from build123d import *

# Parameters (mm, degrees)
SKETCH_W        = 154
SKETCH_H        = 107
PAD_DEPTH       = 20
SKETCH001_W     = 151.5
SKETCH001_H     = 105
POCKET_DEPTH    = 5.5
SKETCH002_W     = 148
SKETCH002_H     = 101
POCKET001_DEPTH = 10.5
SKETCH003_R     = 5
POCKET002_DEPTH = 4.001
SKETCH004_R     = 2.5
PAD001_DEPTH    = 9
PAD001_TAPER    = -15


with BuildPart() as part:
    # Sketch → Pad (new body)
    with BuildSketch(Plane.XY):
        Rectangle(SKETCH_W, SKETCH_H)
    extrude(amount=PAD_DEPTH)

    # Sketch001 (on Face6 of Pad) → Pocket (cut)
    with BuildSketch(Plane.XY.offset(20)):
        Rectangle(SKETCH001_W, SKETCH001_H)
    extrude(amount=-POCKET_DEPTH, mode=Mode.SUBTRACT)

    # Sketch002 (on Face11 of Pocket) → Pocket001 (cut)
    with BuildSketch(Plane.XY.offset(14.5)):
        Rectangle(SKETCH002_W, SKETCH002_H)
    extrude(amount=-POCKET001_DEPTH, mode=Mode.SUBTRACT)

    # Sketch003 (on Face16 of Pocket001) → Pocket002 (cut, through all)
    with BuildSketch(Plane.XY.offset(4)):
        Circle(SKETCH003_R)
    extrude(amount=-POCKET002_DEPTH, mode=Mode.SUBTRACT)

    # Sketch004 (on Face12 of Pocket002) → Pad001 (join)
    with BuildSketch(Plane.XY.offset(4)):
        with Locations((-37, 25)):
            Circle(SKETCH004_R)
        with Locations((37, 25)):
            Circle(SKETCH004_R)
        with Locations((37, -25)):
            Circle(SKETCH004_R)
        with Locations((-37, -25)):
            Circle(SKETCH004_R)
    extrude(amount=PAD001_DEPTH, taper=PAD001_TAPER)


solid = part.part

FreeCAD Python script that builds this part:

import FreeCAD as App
import Part
import Sketcher

V = App.Vector
Q = App.Units.Quantity


def add_polygon(sketch, points):
    """Adds a closed chain of lines whose ends are joined by coincident constraints."""
    first, n = sketch.GeometryCount, len(points)
    for a, b in zip(points, points[1:] + points[:1]):
        sketch.addGeometry(Part.LineSegment(App.Vector(*a, 0), App.Vector(*b, 0)), False)
    for i in range(n):
        sketch.addConstraint(Sketcher.Constraint("Coincident", first + i, 2, first + (i + 1) % n, 1))

doc = App.newDocument("Part")
body = doc.addObject("PartDesign::Body", "Body")

# Sketch on XY plane
sketch1 = doc.addObject("Sketcher::SketchObject", "Sketch")
body.addObject(sketch1)
sketch1.AttachmentSupport = (doc.XY_Plane, [""])
sketch1.MapMode = "FlatFace"
add_polygon(sketch1, [(-77, 54), (-77, -54), (77, -54), (77, 54)])  # lines 0-3
sketch1.addConstraint(Sketcher.Constraint("Vertical", 0))
sketch1.addConstraint(Sketcher.Constraint("Horizontal", 1))
sketch1.addConstraint(Sketcher.Constraint("Vertical", 2))
sketch1.addConstraint(Sketcher.Constraint("Horizontal", 3))
sketch1.addConstraint(Sketcher.Constraint("Symmetric", 0, 2, 2, 2, -1, 1))
sketch1.addConstraint(Sketcher.Constraint("DistanceX", 1, 1, 1, 2, Q("154 mm")))
sketch1.addConstraint(Sketcher.Constraint("DistanceY", 0, 2, 0, 1, Q("107 mm")))
pad1 = doc.addObject("PartDesign::Pad", "Pad")
body.addObject(pad1)
pad1.Profile = sketch1
pad1.Length = 20

# Sketch on XY plane
sketch2 = doc.addObject("Sketcher::SketchObject", "Sketch001")
body.addObject(sketch2)
sketch2.AttachmentSupport = (doc.XY_Plane, [""])
sketch2.MapMode = "FlatFace"
sketch2.AttachmentOffset = App.Placement(V(0, 0, 20), App.Rotation())
add_polygon(sketch2, [(-76, 52), (-76, -52), (76, -52), (76, 52)])  # lines 0-3
sketch2.addConstraint(Sketcher.Constraint("Vertical", 0))
sketch2.addConstraint(Sketcher.Constraint("Horizontal", 1))
sketch2.addConstraint(Sketcher.Constraint("Vertical", 2))
sketch2.addConstraint(Sketcher.Constraint("Horizontal", 3))
sketch2.addConstraint(Sketcher.Constraint("Symmetric", 0, 2, 2, 2, -1, 1))
sketch2.addConstraint(Sketcher.Constraint("DistanceY", 0, 2, 0, 1, Q("105 mm")))
sketch2.addConstraint(Sketcher.Constraint("DistanceX", 1, 1, 1, 2, Q("151.5 mm")))
pocket1 = doc.addObject("PartDesign::Pocket", "Pocket")
body.addObject(pocket1)
pocket1.Profile = sketch2
pocket1.Length = 5.5

# Sketch on XY plane
sketch3 = doc.addObject("Sketcher::SketchObject", "Sketch002")
body.addObject(sketch3)
sketch3.AttachmentSupport = (doc.XY_Plane, [""])
sketch3.MapMode = "FlatFace"
sketch3.AttachmentOffset = App.Placement(V(0, 0, 14.5), App.Rotation())
add_polygon(sketch3, [(-74, 50), (-74, -50), (74, -50), (74, 50)])  # lines 0-3
sketch3.addConstraint(Sketcher.Constraint("Vertical", 0))
sketch3.addConstraint(Sketcher.Constraint("Horizontal", 1))
sketch3.addConstraint(Sketcher.Constraint("Vertical", 2))
sketch3.addConstraint(Sketcher.Constraint("Horizontal", 3))
sketch3.addConstraint(Sketcher.Constraint("Symmetric", 0, 2, 2, 2, -1, 1))
sketch3.addConstraint(Sketcher.Constraint("DistanceX", 1, 1, 1, 2, Q("148 mm")))
sketch3.addConstraint(Sketcher.Constraint("DistanceY", 0, 2, 0, 1, Q("101 mm")))
pocket2 = doc.addObject("PartDesign::Pocket", "Pocket001")
body.addObject(pocket2)
pocket2.Profile = sketch3
pocket2.Length = 10.5

# Sketch on XY plane
sketch4 = doc.addObject("Sketcher::SketchObject", "Sketch003")
body.addObject(sketch4)
sketch4.AttachmentSupport = (doc.XY_Plane, [""])
sketch4.MapMode = "FlatFace"
sketch4.AttachmentOffset = App.Placement(V(0, 0, 4), App.Rotation())
sketch4.addGeometry(Part.Circle(V(0, 0, 0), V(0, 0, 1), 5), False)
sketch4.addConstraint(Sketcher.Constraint("Coincident", 0, 3, -1, 1))
sketch4.addConstraint(Sketcher.Constraint("Diameter", 0, Q("10 mm")))
pocket3 = doc.addObject("PartDesign::Pocket", "Pocket002")
body.addObject(pocket3)
pocket3.Profile = sketch4
pocket3.Type = "ThroughAll"

# Sketch on XY plane
sketch5 = doc.addObject("Sketcher::SketchObject", "Sketch004")
body.addObject(sketch5)
sketch5.AttachmentSupport = (doc.XY_Plane, [""])
sketch5.MapMode = "FlatFace"
sketch5.AttachmentOffset = App.Placement(V(0, 0, 4), App.Rotation())
sketch5.addGeometry(Part.Circle(V(-37, 25, 0), V(0, 0, 1), 2.5), False)
sketch5.addGeometry(Part.Circle(V(37, 25, 0), V(0, 0, 1), 2.5), False)
sketch5.addGeometry(Part.Circle(V(37, -25, 0), V(0, 0, 1), 2.5), False)
sketch5.addGeometry(Part.Circle(V(-37, -25, 0), V(0, 0, 1), 2.5), False)
sketch5.addConstraint(Sketcher.Constraint("Equal", 0, 1))
sketch5.addConstraint(Sketcher.Constraint("Equal", 1, 2))
sketch5.addConstraint(Sketcher.Constraint("Equal", 2, 3))
sketch5.addConstraint(Sketcher.Constraint("Symmetric", 0, 3, 2, 3, -1, 1))
sketch5.addConstraint(Sketcher.Constraint("Symmetric", 1, 3, 3, 3, -1, 1))
sketch5.addConstraint(Sketcher.Constraint("Symmetric", 0, 3, 1, 3, -2))
sketch5.addConstraint(Sketcher.Constraint("Diameter", 0, Q("5 mm")))
sketch5.addConstraint(Sketcher.Constraint("DistanceX", 0, 3, -1, 1, Q("37 mm")))
sketch5.addConstraint(Sketcher.Constraint("DistanceY", -1, 1, 0, 3, Q("25 mm")))
pad2 = doc.addObject("PartDesign::Pad", "Pad001")
body.addObject(pad2)
pad2.Profile = sketch5
pad2.Length = 9
pad2.TaperAngle = 15

doc.recompute()
